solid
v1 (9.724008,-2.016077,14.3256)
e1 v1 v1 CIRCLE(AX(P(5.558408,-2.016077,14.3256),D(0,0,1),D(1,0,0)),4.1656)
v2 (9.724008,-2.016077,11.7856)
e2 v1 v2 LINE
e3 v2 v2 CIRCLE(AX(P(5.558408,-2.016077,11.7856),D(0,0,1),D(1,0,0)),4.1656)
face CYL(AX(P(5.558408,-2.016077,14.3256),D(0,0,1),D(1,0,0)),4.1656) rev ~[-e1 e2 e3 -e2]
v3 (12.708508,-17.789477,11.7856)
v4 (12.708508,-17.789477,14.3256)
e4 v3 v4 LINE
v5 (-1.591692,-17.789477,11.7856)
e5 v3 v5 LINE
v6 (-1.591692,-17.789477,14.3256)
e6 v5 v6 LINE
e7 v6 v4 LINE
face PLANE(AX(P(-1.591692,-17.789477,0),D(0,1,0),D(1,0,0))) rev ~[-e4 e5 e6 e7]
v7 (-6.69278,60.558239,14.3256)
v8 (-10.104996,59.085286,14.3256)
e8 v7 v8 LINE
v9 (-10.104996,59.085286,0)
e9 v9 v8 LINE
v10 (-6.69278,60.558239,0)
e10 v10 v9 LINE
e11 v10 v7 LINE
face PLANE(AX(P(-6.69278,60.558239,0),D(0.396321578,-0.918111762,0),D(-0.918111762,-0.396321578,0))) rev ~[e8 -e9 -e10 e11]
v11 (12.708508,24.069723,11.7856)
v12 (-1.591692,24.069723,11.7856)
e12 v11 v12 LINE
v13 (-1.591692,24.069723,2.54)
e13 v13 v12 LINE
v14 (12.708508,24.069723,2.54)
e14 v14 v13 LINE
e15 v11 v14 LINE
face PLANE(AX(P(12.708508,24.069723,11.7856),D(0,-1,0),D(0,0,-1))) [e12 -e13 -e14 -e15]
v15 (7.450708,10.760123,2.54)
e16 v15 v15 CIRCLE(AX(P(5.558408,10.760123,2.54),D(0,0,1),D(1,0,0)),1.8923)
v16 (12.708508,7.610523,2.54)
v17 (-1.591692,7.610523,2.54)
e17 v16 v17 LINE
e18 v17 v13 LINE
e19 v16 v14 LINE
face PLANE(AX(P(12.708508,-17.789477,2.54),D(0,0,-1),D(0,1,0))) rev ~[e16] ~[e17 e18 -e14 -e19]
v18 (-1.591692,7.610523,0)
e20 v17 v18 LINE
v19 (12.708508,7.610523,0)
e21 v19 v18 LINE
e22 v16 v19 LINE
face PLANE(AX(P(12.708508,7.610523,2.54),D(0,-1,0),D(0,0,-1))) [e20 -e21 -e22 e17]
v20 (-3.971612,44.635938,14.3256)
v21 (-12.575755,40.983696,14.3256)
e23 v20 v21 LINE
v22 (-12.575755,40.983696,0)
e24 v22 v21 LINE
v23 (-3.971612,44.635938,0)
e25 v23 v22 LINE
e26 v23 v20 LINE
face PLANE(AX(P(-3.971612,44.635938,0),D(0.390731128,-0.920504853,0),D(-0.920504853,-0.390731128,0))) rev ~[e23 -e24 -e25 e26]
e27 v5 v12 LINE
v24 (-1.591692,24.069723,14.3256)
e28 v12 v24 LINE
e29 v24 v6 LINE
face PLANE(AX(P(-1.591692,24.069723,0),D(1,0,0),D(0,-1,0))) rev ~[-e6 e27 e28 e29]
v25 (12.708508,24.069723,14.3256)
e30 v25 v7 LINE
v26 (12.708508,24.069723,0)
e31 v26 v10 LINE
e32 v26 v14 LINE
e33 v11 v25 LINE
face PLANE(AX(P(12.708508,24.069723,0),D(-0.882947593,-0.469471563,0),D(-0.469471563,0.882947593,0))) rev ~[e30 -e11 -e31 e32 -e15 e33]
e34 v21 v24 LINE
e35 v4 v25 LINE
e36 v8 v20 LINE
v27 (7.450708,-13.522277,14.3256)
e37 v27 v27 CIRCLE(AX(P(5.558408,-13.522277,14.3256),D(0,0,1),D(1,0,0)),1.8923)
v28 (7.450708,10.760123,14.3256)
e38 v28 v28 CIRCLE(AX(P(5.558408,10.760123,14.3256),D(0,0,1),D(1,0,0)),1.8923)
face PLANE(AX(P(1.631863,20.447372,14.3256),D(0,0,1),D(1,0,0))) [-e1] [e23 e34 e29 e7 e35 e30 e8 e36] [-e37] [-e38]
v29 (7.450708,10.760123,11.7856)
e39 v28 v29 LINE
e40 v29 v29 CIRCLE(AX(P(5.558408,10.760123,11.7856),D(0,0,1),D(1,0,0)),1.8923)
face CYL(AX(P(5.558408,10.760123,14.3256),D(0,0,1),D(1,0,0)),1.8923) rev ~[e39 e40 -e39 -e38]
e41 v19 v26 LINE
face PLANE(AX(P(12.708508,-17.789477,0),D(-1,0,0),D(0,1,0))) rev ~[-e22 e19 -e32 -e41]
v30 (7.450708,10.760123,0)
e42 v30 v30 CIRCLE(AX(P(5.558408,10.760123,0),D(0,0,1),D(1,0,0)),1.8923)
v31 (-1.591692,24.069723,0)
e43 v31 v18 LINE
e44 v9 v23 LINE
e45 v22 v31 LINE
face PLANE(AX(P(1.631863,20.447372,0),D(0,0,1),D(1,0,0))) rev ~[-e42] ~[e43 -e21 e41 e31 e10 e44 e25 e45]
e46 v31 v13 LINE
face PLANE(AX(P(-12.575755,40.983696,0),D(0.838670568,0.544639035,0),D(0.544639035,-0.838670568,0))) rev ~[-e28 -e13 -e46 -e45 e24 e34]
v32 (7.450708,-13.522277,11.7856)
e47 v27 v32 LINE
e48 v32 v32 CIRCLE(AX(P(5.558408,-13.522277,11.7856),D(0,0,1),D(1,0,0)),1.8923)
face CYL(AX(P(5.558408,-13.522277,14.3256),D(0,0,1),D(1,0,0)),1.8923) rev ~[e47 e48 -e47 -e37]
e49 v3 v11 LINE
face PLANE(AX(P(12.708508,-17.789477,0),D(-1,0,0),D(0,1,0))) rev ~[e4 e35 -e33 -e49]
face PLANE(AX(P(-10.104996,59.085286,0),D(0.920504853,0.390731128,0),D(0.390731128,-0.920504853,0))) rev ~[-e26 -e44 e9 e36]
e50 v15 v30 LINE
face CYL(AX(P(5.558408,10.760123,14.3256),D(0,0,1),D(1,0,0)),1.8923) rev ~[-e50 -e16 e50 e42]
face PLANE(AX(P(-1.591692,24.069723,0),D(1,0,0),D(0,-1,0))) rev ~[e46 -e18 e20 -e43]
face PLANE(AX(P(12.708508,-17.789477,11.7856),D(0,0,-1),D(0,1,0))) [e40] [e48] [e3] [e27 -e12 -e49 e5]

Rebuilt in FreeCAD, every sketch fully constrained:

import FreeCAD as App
import Part
import Sketcher
Q = App.Units.Quantity

doc = App.newDocument("Part")
body = doc.addObject("PartDesign::Body", "Body")

sketch1 = doc.addObject("Sketcher::SketchObject", "Sketch")
body.addObject(sketch1)
sketch1.AttachmentSupport = (doc.XY_Plane, [""])
sketch1.MapMode = "FlatFace"
sketch1.addGeometry([
    Part.LineSegment(App.Vector(-1.591692, -17.789477, 0), App.Vector(12.708508, -17.789477, 0)),
    Part.LineSegment(App.Vector(12.708508, -17.789477, 0), App.Vector(12.708508, 24.069723, 0)),
    Part.LineSegment(App.Vector(12.708508, 24.069723, 0), App.Vector(-6.69278, 60.558239, 0)),
    Part.LineSegment(App.Vector(-6.69278, 60.558239, 0), App.Vector(-10.104996, 59.085286, 0)),
    Part.LineSegment(App.Vector(-10.104996, 59.085286, 0), App.Vector(-3.971612, 44.635938, 0)),
    Part.LineSegment(App.Vector(-3.971612, 44.635938, 0), App.Vector(-12.575755, 40.983696, 0)),
    Part.LineSegment(App.Vector(-12.575755, 40.983696, 0), App.Vector(-1.591692, 24.069723, 0)),
    Part.LineSegment(App.Vector(-1.591692, 24.069723, 0), App.Vector(-1.591692, -17.789477, 0)),
], False)
sketch1.addConstraint([
    Sketcher.Constraint("Coincident", 0, 2, 1, 1),
    Sketcher.Constraint("Coincident", 1, 2, 2, 1),
    Sketcher.Constraint("Coincident", 2, 2, 3, 1),
    Sketcher.Constraint("Coincident", 3, 2, 4, 1),
    Sketcher.Constraint("Coincident", 4, 2, 5, 1),
    Sketcher.Constraint("Coincident", 5, 2, 6, 1),
    Sketcher.Constraint("Coincident", 6, 2, 7, 1),
    Sketcher.Constraint("Coincident", 7, 2, 0, 1),
    Sketcher.Constraint("Horizontal", 0),
    Sketcher.Constraint("Vertical", 1),
    Sketcher.Constraint("Vertical", 7),
    Sketcher.Constraint("Perpendicular", 4, 5),
    Sketcher.Constraint("Horizontal", 1, 2, 6, 2),
    Sketcher.Constraint("Angle", 2, Q("118 deg")),
    Sketcher.Constraint("Angle", 4, Q("-67 deg")),
    Sketcher.Constraint("Angle", 6, Q("-57 deg")),
    Sketcher.Constraint("DistanceX", 0, 1, 0, 2, Q("0.563 in")),
    Sketcher.Constraint("DistanceY", 1, 1, 1, 2, Q("1.648 in")),
    Sketcher.Constraint("Distance", 2, Q("1.627 in")),
    Sketcher.Constraint("Distance", 4, Q("0.618 in")),
    Sketcher.Constraint("Distance", 5, Q("0.368 in")),
    Sketcher.Constraint("Distance", 6, Q("0.794 in")),
    Sketcher.Constraint("DistanceX", 2, 2, -1, 1, Q("6.69278 mm")),
    Sketcher.Constraint("DistanceY", -1, 1, 2, 2, Q("60.558239 mm")),
])
pad1 = doc.addObject("PartDesign::Pad", "Pad")
body.addObject(pad1)
pad1.Profile = sketch1
pad1.Length = Q("0.564 in")

sketch2 = doc.addObject("Sketcher::SketchObject", "Sketch001")
body.addObject(sketch2)
sketch2.AttachmentSupport = (doc.YZ_Plane, [""])
sketch2.MapMode = "FlatFace"
sketch2.AttachmentOffset = App.Placement(App.Vector(0, 0, 12.708508), App.Rotation())
sketch2.addGeometry([
    Part.LineSegment(App.Vector(24.069723, 11.7856, 0), App.Vector(-17.789477, 11.7856, 0)),
    Part.LineSegment(App.Vector(-17.789477, 11.7856, 0), App.Vector(-17.789477, 2.54, 0)),
    Part.LineSegment(App.Vector(-17.789477, 2.54, 0), App.Vector(24.069723, 2.54, 0)),
    Part.LineSegment(App.Vector(24.069723, 2.54, 0), App.Vector(24.069723, 11.7856, 0)),
], False)
sketch2.addConstraint([
    Sketcher.Constraint("Coincident", 0, 2, 1, 1),
    Sketcher.Constraint("Coincident", 1, 2, 2, 1),
    Sketcher.Constraint("Coincident", 2, 2, 3, 1),
    Sketcher.Constraint("Coincident", 3, 2, 0, 1),
    Sketcher.Constraint("Horizontal", 0),
    Sketcher.Constraint("Vertical", 1),
    Sketcher.Constraint("Horizontal", 2),
    Sketcher.Constraint("Vertical", 3),
    Sketcher.Constraint("DistanceY", -1, 1, 1, 2, Q("0.1 in")),
    Sketcher.Constraint("DistanceX", 0, 2, 0, 1, Q("1.648 in")),
    Sketcher.Constraint("DistanceY", 1, 2, 1, 1, Q("0.364 in")),
    Sketcher.Constraint("DistanceX", 0, 2, -1, 1, Q("17.789477 mm")),
])
pocket1 = doc.addObject("PartDesign::Pocket", "Pocket")
body.addObject(pocket1)
pocket1.Profile = sketch2
pocket1.Length = Q("0.564 in")

sketch3 = doc.addObject("Sketcher::SketchObject", "Sketch002")
body.addObject(sketch3)
sketch3.AttachmentSupport = (doc.YZ_Plane, [""])
sketch3.MapMode = "FlatFace"
sketch3.AttachmentOffset = App.Placement(App.Vector(0, 0, 12.708508), App.Rotation())
sketch3.addGeometry([
    Part.LineSegment(App.Vector(7.610523, 2.54, 0), App.Vector(-17.789477, 2.54, 0)),
    Part.LineSegment(App.Vector(-17.789477, 2.54, 0), App.Vector(-17.789477, 0, 0)),
    Part.LineSegment(App.Vector(-17.789477, 0, 0), App.Vector(7.610523, 0, 0)),
    Part.LineSegment(App.Vector(7.610523, 0, 0), App.Vector(7.610523, 2.54, 0)),
], False)
sketch3.addConstraint([
    Sketcher.Constraint("Coincident", 0, 2, 1, 1),
    Sketcher.Constraint("Coincident", 1, 2, 2, 1),
    Sketcher.Constraint("Coincident", 2, 2, 3, 1),
    Sketcher.Constraint("Coincident", 3, 2, 0, 1),
    Sketcher.Constraint("Horizontal", 0),
    Sketcher.Constraint("Vertical", 1),
    Sketcher.Constraint("Horizontal", 2),
    Sketcher.Constraint("Vertical", 3),
    Sketcher.Constraint("PointOnObject", 1, 2, -1),
    Sketcher.Constraint("DistanceX", 0, 2, 0, 1, Q("1 in")),
    Sketcher.Constraint("DistanceY", 1, 2, 1, 1, Q("0.1 in")),
    Sketcher.Constraint("DistanceX", 0, 2, -1, 1, Q("17.789477 mm")),
])
pocket2 = doc.addObject("PartDesign::Pocket", "Pocket001")
body.addObject(pocket2)
pocket2.Profile = sketch3
pocket2.Length = Q("0.564 in")

sketch4 = doc.addObject("Sketcher::SketchObject", "Sketch003")
body.addObject(sketch4)
sketch4.AttachmentSupport = (doc.XY_Plane, [""])
sketch4.MapMode = "FlatFace"
sketch4.AttachmentOffset = App.Placement(App.Vector(0, 0, 0.564 * 25.4), App.Rotation())
sketch4.addGeometry([
    Part.Circle(App.Vector(5.558408, -13.522277, 0), App.Vector(0, 0, 1), 1.8923),
    Part.Circle(App.Vector(5.558408, 10.760123, 0), App.Vector(0, 0, 1), 1.8923),
    Part.Circle(App.Vector(5.558408, -2.016077, 0), App.Vector(0, 0, 1), 4.1656),
], False)
sketch4.addConstraint([
    Sketcher.Constraint("Equal", 0, 1),
    Sketcher.Constraint("Vertical", 0, 3, 1, 3),
    Sketcher.Constraint("Vertical", 1, 3, 2, 3),
    Sketcher.Constraint("Diameter", 0, Q("0.149 in")),
    Sketcher.Constraint("Diameter", 2, Q("0.328 in")),
    Sketcher.Constraint("DistanceY", 0, 3, 1, 3, Q("0.956 in")),
    Sketcher.Constraint("DistanceY", 0, 3, 2, 3, Q("0.453 in")),
    Sketcher.Constraint("DistanceX", -1, 1, 0, 3, Q("5.558408 mm")),
    Sketcher.Constraint("DistanceY", 0, 3, -1, 1, Q("13.522277 mm")),
])
pocket3 = doc.addObject("PartDesign::Pocket", "Pocket002")
body.addObject(pocket3)
pocket3.Profile = sketch4
pocket3.Length = Q("0.564 in")

doc.recompute()
